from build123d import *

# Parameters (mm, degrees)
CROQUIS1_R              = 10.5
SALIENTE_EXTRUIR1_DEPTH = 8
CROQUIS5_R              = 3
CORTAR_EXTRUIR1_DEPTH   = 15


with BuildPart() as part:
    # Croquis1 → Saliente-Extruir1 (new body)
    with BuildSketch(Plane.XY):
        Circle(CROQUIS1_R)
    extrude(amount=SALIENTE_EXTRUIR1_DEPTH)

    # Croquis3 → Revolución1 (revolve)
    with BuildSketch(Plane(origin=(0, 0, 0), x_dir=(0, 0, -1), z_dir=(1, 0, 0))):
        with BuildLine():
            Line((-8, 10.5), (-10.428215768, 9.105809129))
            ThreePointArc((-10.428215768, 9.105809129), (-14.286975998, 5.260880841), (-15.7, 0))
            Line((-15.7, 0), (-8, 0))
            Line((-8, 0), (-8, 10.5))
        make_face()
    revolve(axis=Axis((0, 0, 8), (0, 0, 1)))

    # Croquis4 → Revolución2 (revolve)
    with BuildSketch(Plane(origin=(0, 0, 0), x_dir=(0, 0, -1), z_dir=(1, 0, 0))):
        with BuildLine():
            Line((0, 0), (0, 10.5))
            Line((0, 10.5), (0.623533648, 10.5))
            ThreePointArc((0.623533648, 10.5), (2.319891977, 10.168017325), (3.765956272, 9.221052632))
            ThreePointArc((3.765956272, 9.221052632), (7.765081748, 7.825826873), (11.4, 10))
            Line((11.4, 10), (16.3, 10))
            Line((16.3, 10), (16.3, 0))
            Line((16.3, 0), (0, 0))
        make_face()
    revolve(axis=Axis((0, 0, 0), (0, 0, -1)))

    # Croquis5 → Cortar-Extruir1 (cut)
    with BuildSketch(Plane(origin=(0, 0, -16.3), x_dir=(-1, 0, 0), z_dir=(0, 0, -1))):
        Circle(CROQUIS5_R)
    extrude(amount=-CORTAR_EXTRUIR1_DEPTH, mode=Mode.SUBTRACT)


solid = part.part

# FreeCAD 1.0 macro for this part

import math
import FreeCAD as App
import Part
import Sketcher
Q = App.Units.Quantity

doc = App.newDocument("Part")
params = doc.addObject("Spreadsheet::Sheet", "Params")
for row, (alias, value) in enumerate([
    ("sketch1_diameter", "21 mm"),
    ("pad1_length", "8 mm"),
    ("sketch2_radius", "10.5 mm"),
    ("sketch2_width", "10.5 mm"),
    ("sketch2_height", "7.7 mm"),
    ("revolution_angle", "360 deg"),
    ("sketch3_radius", "5 mm"),
    ("sketch3_radius2", "4.5 mm"),
    ("sketch3_width", "10 mm"),
    ("sketch3_width2", "10.5 mm"),
    ("sketch3_height", "16.3 mm"),
    ("revolution2_angle", "360 deg"),
    ("sketch4_diameter", "6 mm"),
    ("pocket1_length", "15 mm"),
], start=1):
    params.set(f"A{row}", alias)
    params.set(f"B{row}", "=" + value)
    params.setAlias(f"B{row}", alias)

body = doc.addObject("PartDesign::Body", "Body")

# Sketch on XY plane
sketch1 = body.newObject("Sketcher::SketchObject", "Sketch")
sketch1.AttachmentSupport = (doc.getObject("XY_Plane"), [""])
sketch1.MapMode = "FlatFace"
sketch1.addGeometry(Part.Circle(App.Vector(0, 0, 0), App.Vector(0, 0, 1), 10), False)
sketch1.addConstraint([
    Sketcher.Constraint("Coincident", 0, 3, -1, 1),
    Sketcher.Constraint("Diameter", 0, Q("21 mm")),
])
sketch1.setExpression("Constraints[1]", "Params.sketch1_diameter")
pad1 = body.newObject("PartDesign::Pad", "Pad")
pad1.Profile = sketch1
pad1.setExpression("Length", "Params.pad1_length")

# Sketch on YZ plane
sketch2 = body.newObject("Sketcher::SketchObject", "Sketch001")
sketch2.AttachmentSupport = (doc.getObject("YZ_Plane"), [""])
sketch2.MapMode = "FlatFace"
sketch2.addGeometry([
    Part.LineSegment(App.Vector(10.5, 8, 0), App.Vector(9.1, 10.4, 0)),
    Part.ArcOfCircle(Part.Circle(App.Vector(0, 5.2, 0), App.Vector(0, 0, 1), 10.5), math.radians(30), math.radians(90)),
    Part.LineSegment(App.Vector(0, 15.7, 0), App.Vector(0, 8, 0)),
    Part.LineSegment(App.Vector(0, 8, 0), App.Vector(10.5, 8, 0)),
], False)
sketch2.addConstraint([
    Sketcher.Constraint("Tangent", 0, 2, 1, 1),
    Sketcher.Constraint("Coincident", 1, 2, 2, 1),
    Sketcher.Constraint("Coincident", 2, 2, 3, 1),
    Sketcher.Constraint("Coincident", 3, 2, 0, 1),
    Sketcher.Constraint("Vertical", 2),
    Sketcher.Constraint("Horizontal", 3),
    Sketcher.Constraint("PointOnObject", 1, 3, -2),
    Sketcher.Constraint("PointOnObject", 1, 2, -2),
    Sketcher.Constraint("Radius", 1, Q("10.5 mm")),
    Sketcher.Constraint("DistanceX", 3, 1, 3, 2, Q("10.5 mm")),
    Sketcher.Constraint("DistanceY", 2, 2, 2, 1, Q("7.7 mm")),
    Sketcher.Constraint("DistanceY", -1, 1, 2, 2, Q("8 mm")),
])
sketch2.setExpression("Constraints[8]", "Params.sketch2_radius")
sketch2.setExpression("Constraints[9]", "Params.sketch2_width")
sketch2.setExpression("Constraints[10]", "Params.sketch2_height")
revolution = body.newObject("PartDesign::Revolution", "Revolution")
revolution.Profile = sketch2
revolution.ReferenceAxis = (sketch2, ["V_Axis"])
revolution.setExpression("Angle", "Params.revolution_angle")

# Sketch on YZ plane
sketch3 = body.newObject("Sketcher::SketchObject", "Sketch002")
sketch3.AttachmentSupport = (doc.getObject("YZ_Plane"), [""])
sketch3.MapMode = "FlatFace"
sketch3.addGeometry([
    Part.LineSegment(App.Vector(10.5, 0, 0), App.Vector(0, 0, 0)),  # 0
    Part.LineSegment(App.Vector(0, 0, 0), App.Vector(0, -16.3, 0)),  # 1
    Part.LineSegment(App.Vector(0, -16.3, 0), App.Vector(10, -16.3, 0)),  # 2
    Part.LineSegment(App.Vector(10, -16.3, 0), App.Vector(10, -11.4, 0)),  # 3
    Part.ArcOfCircle(Part.Circle(App.Vector(12.8, -7.3, 0), App.Vector(0, 0, 1), 5), math.radians(136), math.radians(236)),  # 4
    Part.ArcOfCircle(Part.Circle(App.Vector(6, -0.6, 0), App.Vector(0, 0, 1), 4.5), math.radians(-44), math.radians(0)),  # 5
    Part.LineSegment(App.Vector(10.5, -0.6, 0), App.Vector(10.5, 0, 0)),  # 6
], False)
sketch3.addConstraint([
    Sketcher.Constraint("Coincident", 0, 2, 1, 1),
    Sketcher.Constraint("Coincident", 1, 2, 2, 1),
    Sketcher.Constraint("Coincident", 2, 2, 3, 1),
    Sketcher.Constraint("Coincident", 3, 2, 4, 2),
    Sketcher.Constraint("Tangent", 4, 1, 5, 1),
    Sketcher.Constraint("Tangent", 5, 2, 6, 1),
    Sketcher.Constraint("Coincident", 6, 2, 0, 1),
    Sketcher.Constraint("Horizontal", 0),
    Sketcher.Constraint("Vertical", 1),
    Sketcher.Constraint("Horizontal", 2),
    Sketcher.Constraint("Vertical", 3),
    Sketcher.Constraint("Vertical", 6),
    Sketcher.Constraint("Coincident", 0, 2, -1, 1),
    Sketcher.Constraint("Radius", 4, Q("5 mm")),
    Sketcher.Constraint("Radius", 5, Q("4.5 mm")),
    Sketcher.Constraint("DistanceX", 2, 1, 2, 2, Q("10 mm")),
    Sketcher.Constraint("DistanceX", 0, 2, 0, 1, Q("10.5 mm")),
    Sketcher.Constraint("DistanceY", 1, 2, 1, 1, Q("16.3 mm")),
    Sketcher.Constraint("DistanceY", 3, 1, 3, 2, Q("4.9 mm")),
    Sketcher.Constraint("DistanceX", -1, 1, 4, 3, Q("12.8 mm")),
])
sketch3.setExpression("Constraints[13]", "Params.sketch3_radius")
sketch3.setExpression("Constraints[14]", "Params.sketch3_radius2")
sketch3.setExpression("Constraints[15]", "Params.sketch3_width")
sketch3.setExpression("Constraints[16]", "Params.sketch3_width2")
sketch3.setExpression("Constraints[17]", "Params.sketch3_height")
revolution2 = body.newObject("PartDesign::Revolution", "Revolution001")
revolution2.Profile = sketch3
revolution2.ReferenceAxis = (sketch3, ["V_Axis"])
revolution2.setExpression("Angle", "Params.revolution2_angle")

# Sketch on XY plane
sketch4 = body.newObject("Sketcher::SketchObject", "Sketch003")
sketch4.AttachmentSupport = (doc.getObject("XY_Plane"), [""])
sketch4.MapMode = "FlatFace"
sketch4.AttachmentOffset = App.Placement(App.Vector(0, 0, -16.3), App.Rotation())
sketch4.addGeometry(Part.Circle(App.Vector(0, 0, 0), App.Vector(0, 0, 1), 3), False)
sketch4.addConstraint([
    Sketcher.Constraint("Coincident", 0, 3, -1, 1),
    Sketcher.Constraint("Diameter", 0, Q("6 mm")),
])
sketch4.setExpression("Constraints[1]", "Params.sketch4_diameter")
pocket1 = body.newObject("PartDesign::Pocket", "Pocket")
pocket1.Profile = sketch4
pocket1.setExpression("Length", "Params.pocket1_length")
pocket1.Reversed = True

doc.recompute()
